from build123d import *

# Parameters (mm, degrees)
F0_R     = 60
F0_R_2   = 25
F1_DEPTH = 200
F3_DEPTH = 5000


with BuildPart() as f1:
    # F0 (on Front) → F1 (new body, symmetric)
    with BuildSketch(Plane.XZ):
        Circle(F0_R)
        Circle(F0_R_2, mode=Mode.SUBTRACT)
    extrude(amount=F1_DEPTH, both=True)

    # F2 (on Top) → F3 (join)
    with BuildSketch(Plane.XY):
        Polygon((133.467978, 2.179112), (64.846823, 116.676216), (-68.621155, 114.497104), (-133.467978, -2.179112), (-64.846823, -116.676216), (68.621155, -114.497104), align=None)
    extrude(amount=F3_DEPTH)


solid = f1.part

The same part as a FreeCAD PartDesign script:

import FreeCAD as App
import Part
import Sketcher

V = App.Vector


def add_polygon(sketch, points):
    """Adds a closed chain of lines whose ends are joined by coincident constraints."""
    first, n = sketch.GeometryCount, len(points)
    for a, b in zip(points, points[1:] + points[:1]):
        sketch.addGeometry(Part.LineSegment(App.Vector(*a, 0), App.Vector(*b, 0)), False)
    for i in range(n):
        sketch.addConstraint(Sketcher.Constraint("Coincident", first + i, 2, first + (i + 1) % n, 1))

doc = App.newDocument("Part")
params = doc.addObject("Spreadsheet::Sheet", "Params")
for row, (alias, value) in enumerate([
    ("sketch1_diameter", "120 mm"),
    ("sketch1_diameter2", "50 mm"),
    ("pad1_length", "400 mm"),
    ("pad2_length", "5000 mm"),
], start=1):
    params.set(f"A{row}", alias)
    params.set(f"B{row}", "=" + value)
    params.setAlias(f"B{row}", alias)

body = doc.addObject("PartDesign::Body", "Body")

# Sketch on XZ plane
sketch1 = body.newObject("Sketcher::SketchObject", "Sketch")
sketch1.AttachmentSupport = (doc.getObject("XZ_Plane"), [""])
sketch1.MapMode = "FlatFace"
sketch1.addGeometry(Part.Circle(V(0, 0, 0), V(0, 0, 1), 60), False)
sketch1.addGeometry(Part.Circle(V(0, 0, 0), V(0, 0, 1), 25), False)
sketch1.addConstraint(Sketcher.Constraint("Coincident", 0, 3, -1, 1))
sketch1.addConstraint(Sketcher.Constraint("Coincident", 1, 3, -1, 1))
sketch1.addConstraint(Sketcher.Constraint("Diameter", 0, 120.0))
sketch1.addConstraint(Sketcher.Constraint("Diameter", 1, 50.0))
sketch1.setExpression("Constraints[2]", "Params.sketch1_diameter")
sketch1.setExpression("Constraints[3]", "Params.sketch1_diameter2")
pad1 = body.newObject("PartDesign::Pad", "Pad")
pad1.Profile = sketch1
pad1.setExpression("Length", "Params.pad1_length")
pad1.Midplane = True

# Sketch on XY plane
sketch2 = body.newObject("Sketcher::SketchObject", "Sketch001")
sketch2.AttachmentSupport = (doc.getObject("XY_Plane"), [""])
sketch2.MapMode = "FlatFace"
add_polygon(sketch2, [(133.467978, 2.179112), (64.846823, 116.676216), (-68.621155, 114.497104), (-133.467978, -2.179112), (-64.846823, -116.676216), (68.621155, -114.497104)])  # lines 0-5
sketch2.addConstraint(Sketcher.Constraint("Symmetric", 0, 2, 3, 2, -1, 1))
sketch2.addConstraint(Sketcher.Constraint("Symmetric", 1, 2, 4, 2, -1, 1))
sketch2.addConstraint(Sketcher.Constraint("Symmetric", 2, 2, 5, 2, -1, 1))
sketch2.addConstraint(Sketcher.Constraint("Equal", 0, 1))
sketch2.addConstraint(Sketcher.Constraint("Equal", 1, 2))
sketch2.addConstraint(Sketcher.Constraint("DistanceX", 2, 2, 0, 2, 198.314801))
sketch2.addConstraint(Sketcher.Constraint("DistanceY", 2, 2, -1, 1, 2.179112))
sketch2.addConstraint(Sketcher.Constraint("DistanceX", 1, 2, 0, 2, 133.467978))
sketch2.addConstraint(Sketcher.Constraint("DistanceY", 2, 2, 0, 2, 118.855328))
pad2 = body.newObject("PartDesign::Pad", "Pad001")
pad2.Profile = sketch2
pad2.setExpression("Length", "Params.pad2_length")

doc.recompute()
